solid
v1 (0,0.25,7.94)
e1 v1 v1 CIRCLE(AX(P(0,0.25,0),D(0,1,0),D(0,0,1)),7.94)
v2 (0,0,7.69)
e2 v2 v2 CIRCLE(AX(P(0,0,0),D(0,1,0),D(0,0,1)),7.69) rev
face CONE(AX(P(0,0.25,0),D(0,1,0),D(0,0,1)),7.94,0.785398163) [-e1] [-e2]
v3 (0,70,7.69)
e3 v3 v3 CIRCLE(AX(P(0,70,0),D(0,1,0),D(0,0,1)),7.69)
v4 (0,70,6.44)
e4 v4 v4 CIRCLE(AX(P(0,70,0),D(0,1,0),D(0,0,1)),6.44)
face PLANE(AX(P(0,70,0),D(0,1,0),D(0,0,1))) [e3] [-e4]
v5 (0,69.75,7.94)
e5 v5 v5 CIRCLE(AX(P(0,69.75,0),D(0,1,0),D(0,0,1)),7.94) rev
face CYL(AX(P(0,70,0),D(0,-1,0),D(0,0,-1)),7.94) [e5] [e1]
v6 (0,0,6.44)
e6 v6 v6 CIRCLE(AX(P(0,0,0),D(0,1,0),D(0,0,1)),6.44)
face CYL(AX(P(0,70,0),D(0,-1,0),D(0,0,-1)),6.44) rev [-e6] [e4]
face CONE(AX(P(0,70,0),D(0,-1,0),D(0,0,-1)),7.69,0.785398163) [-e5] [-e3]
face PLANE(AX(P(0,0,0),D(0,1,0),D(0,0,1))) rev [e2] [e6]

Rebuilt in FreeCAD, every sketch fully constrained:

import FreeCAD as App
import Part
import Sketcher

V = App.Vector
Q = App.Units.Quantity


def edges_at(feature, points):
    """Names of the edges that pass closest to the given points."""
    edges = feature.Shape.Edges
    near = lambda p: min(range(len(edges)), key=lambda i: edges[i].distToShape(Part.Vertex(*p))[0])
    return sorted({f"Edge{near(p) + 1}" for p in points})

doc = App.newDocument("Part")
body = doc.addObject("PartDesign::Body", "Body")

# Sketch on XZ plane
sketch1 = body.newObject("Sketcher::SketchObject", "Sketch")
sketch1.AttachmentSupport = (doc.getObject("XZ_Plane"), [""])
sketch1.MapMode = "FlatFace"
sketch1.addGeometry([
    Part.Circle(V(0, 0, 0), V(0, 0, 1), 7.94),
    Part.Circle(V(0, 0, 0), V(0, 0, 1), 6.44),
], False)
sketch1.addConstraint([
    Sketcher.Constraint("Coincident", 0, 3, -1, 1),
    Sketcher.Constraint("Coincident", 1, 3, -1, 1),
    Sketcher.Constraint("Diameter", 0, Q("15.88 mm")),
    Sketcher.Constraint("Diameter", 1, Q("12.88 mm")),
])
pad1 = body.newObject("PartDesign::Pad", "Pad")
pad1.Profile = sketch1
pad1.Length = 70
pad1.Reversed = True
doc.recompute()

chamfer = body.newObject("PartDesign::Chamfer", "Chamfer")
chamfer.Base = (pad1, edges_at(pad1, [(-7.94, 0, 0), (-7.94, 70, 0)]))
chamfer.Size = 0.25

doc.recompute()
